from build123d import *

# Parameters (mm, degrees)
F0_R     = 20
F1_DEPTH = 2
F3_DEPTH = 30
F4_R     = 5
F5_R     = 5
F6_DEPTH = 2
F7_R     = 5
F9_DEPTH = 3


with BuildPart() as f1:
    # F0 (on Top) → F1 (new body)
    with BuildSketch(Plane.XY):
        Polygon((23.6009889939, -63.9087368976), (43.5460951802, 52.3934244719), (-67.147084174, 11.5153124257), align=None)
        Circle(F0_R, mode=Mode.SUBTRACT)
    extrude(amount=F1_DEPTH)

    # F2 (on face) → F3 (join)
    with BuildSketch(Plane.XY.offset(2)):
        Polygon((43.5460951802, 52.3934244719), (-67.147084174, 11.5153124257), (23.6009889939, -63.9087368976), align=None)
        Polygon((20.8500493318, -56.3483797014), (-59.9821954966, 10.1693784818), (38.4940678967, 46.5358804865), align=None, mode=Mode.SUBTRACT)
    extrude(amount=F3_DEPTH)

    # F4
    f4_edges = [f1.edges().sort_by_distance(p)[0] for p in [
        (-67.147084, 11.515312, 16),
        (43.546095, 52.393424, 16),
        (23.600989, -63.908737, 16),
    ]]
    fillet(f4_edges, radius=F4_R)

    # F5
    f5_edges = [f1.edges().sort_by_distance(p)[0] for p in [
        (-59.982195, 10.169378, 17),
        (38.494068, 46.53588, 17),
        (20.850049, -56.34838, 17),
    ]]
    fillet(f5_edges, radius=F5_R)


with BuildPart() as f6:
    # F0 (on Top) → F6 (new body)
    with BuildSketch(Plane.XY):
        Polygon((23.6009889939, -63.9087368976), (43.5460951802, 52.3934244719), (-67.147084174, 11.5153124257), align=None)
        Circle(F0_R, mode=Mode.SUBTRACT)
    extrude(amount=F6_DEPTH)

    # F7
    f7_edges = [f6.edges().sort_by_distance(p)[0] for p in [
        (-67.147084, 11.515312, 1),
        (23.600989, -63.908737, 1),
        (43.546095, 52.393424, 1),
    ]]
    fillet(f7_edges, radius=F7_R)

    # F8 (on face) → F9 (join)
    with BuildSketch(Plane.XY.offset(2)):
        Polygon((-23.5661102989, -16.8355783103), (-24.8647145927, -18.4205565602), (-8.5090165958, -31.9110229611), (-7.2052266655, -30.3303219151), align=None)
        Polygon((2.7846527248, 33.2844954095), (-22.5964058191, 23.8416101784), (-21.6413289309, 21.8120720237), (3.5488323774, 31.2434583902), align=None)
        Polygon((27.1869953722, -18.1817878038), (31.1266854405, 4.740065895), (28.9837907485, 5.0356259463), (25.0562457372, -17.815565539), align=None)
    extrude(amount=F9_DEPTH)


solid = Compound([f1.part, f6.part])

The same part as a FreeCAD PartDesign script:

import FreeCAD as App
import Part
import Sketcher


def edges_at(feature, points):
    """Names of the edges that pass closest to the given points."""
    edges = feature.Shape.Edges
    near = lambda p: min(range(len(edges)), key=lambda i: edges[i].distToShape(Part.Vertex(*p))[0])
    return sorted({f"Edge{near(p) + 1}" for p in points})


def add_polygon(sketch, points):
    """Adds a closed chain of lines whose ends are joined by coincident constraints."""
    first, n = sketch.GeometryCount, len(points)
    for a, b in zip(points, points[1:] + points[:1]):
        sketch.addGeometry(Part.LineSegment(App.Vector(*a, 0), App.Vector(*b, 0)), False)
    for i in range(n):
        sketch.addConstraint(Sketcher.Constraint("Coincident", first + i, 2, first + (i + 1) % n, 1))

doc = App.newDocument("Part")
body = doc.addObject("PartDesign::Body", "Body")

# Sketch on XY plane
sketch1 = body.newObject("Sketcher::SketchObject", "Sketch")
sketch1.AttachmentSupport = (doc.getObject("XY_Plane"), [""])
sketch1.MapMode = "FlatFace"
add_polygon(sketch1, [(24, -64), (44, 52), (-67, 12)])  # lines 0-2
sketch1.addGeometry(Part.Circle(App.Vector(0, 0, 0), App.Vector(0, 0, 1), 20), False)  # 3
sketch1.addConstraint(Sketcher.Constraint("Coincident", 3, 3, -1, 1))
sketch1.addConstraint(Sketcher.Constraint("Equal", 0, 1))
sketch1.addConstraint(Sketcher.Constraint("Equal", 1, 2))
sketch1.addConstraint(Sketcher.Constraint("Diameter", 3, 40.0))
sketch1.addConstraint(Sketcher.Constraint("Distance", 0, 118.0))
sketch1.addConstraint(Sketcher.Constraint("DistanceX", -1, 1, 2, 2, 23.600989))
sketch1.addConstraint(Sketcher.Constraint("DistanceX", 1, 2, 0, 2, 110.693179))
sketch1.addConstraint(Sketcher.Constraint("DistanceY", -1, 1, 0, 2, 52.393424))
pad1 = body.newObject("PartDesign::Pad", "Pad")
pad1.Profile = sketch1
pad1.Length = 2

# Sketch on XY plane
sketch2 = body.newObject("Sketcher::SketchObject", "Sketch001")
sketch2.AttachmentSupport = (doc.getObject("XY_Plane"), [""])
sketch2.MapMode = "FlatFace"
sketch2.AttachmentOffset = App.Placement(App.Vector(0, 0, 2), App.Rotation())
add_polygon(sketch2, [(44, 52), (-67, 12), (24, -64)])  # lines 0-2
add_polygon(sketch2, [(38, 47), (21, -56), (-60, 10)])  # lines 3-5
sketch2.addConstraint(Sketcher.Constraint("Parallel", 2, 3))
sketch2.addConstraint(Sketcher.Constraint("Parallel", 0, 5))
sketch2.addConstraint(Sketcher.Constraint("Equal", 0, 1))
sketch2.addConstraint(Sketcher.Constraint("Equal", 1, 2))
sketch2.addConstraint(Sketcher.Constraint("Distance", 0, 118.0))
sketch2.addConstraint(Sketcher.Constraint("Distance", 5, 104.976649))
sketch2.addConstraint(Sketcher.Constraint("DistanceX", -1, 1, 1, 2, 23.600989))
sketch2.addConstraint(Sketcher.Constraint("DistanceX", -1, 1, 3, 2, 20.850049))
sketch2.addConstraint(Sketcher.Constraint("DistanceY", 3, 2, -1, 1, 56.34838))
sketch2.addConstraint(Sketcher.Constraint("DistanceY", -1, 1, 4, 2, 10.169378))
sketch2.addConstraint(Sketcher.Constraint("DistanceY", -1, 1, 5, 2, 46.53588))
sketch2.addConstraint(Sketcher.Constraint("DistanceY", 0, 2, 5, 2, 35.020568))
pad2 = body.newObject("PartDesign::Pad", "Pad001")
pad2.Profile = sketch2
pad2.Length = 30
doc.recompute()

fillet = body.newObject("PartDesign::Fillet", "Fillet")
fillet.Base = (pad2, edges_at(pad2, [(-67.147, 11.515, 16), (43.546, 52.393, 16), (23.601, -63.909, 16)]))
fillet.Radius = 5
doc.recompute()

fillet2 = body.newObject("PartDesign::Fillet", "Fillet001")
fillet2.Base = (fillet, edges_at(fillet, [(-59.982, 10.169, 17), (38.494, 46.536, 17), (20.85, -56.348, 17)]))
fillet2.Radius = 5
body2 = doc.addObject("PartDesign::Body", "Body001")

# Sketch on XY plane
sketch3 = body2.newObject("Sketcher::SketchObject", "Sketch002")
sketch3.AttachmentSupport = (doc.getObject("XY_Plane001"), [""])
sketch3.MapMode = "FlatFace"
add_polygon(sketch3, [(24, -64), (44, 52), (-67, 12)])  # lines 0-2
sketch3.addGeometry(Part.Circle(App.Vector(0, 0, 0), App.Vector(0, 0, 1), 20), False)  # 3
sketch3.addConstraint(Sketcher.Constraint("Coincident", 3, 3, -1, 1))
sketch3.addConstraint(Sketcher.Constraint("Equal", 0, 1))
sketch3.addConstraint(Sketcher.Constraint("Equal", 1, 2))
sketch3.addConstraint(Sketcher.Constraint("Diameter", 3, 40.0))
sketch3.addConstraint(Sketcher.Constraint("Distance", 0, 118.0))
sketch3.addConstraint(Sketcher.Constraint("DistanceX", -1, 1, 2, 2, 23.600989))
sketch3.addConstraint(Sketcher.Constraint("DistanceX", 1, 2, 0, 2, 110.693179))
sketch3.addConstraint(Sketcher.Constraint("DistanceY", -1, 1, 0, 2, 52.393424))
pad3 = body2.newObject("PartDesign::Pad", "Pad002")
pad3.Profile = sketch3
pad3.Length = 2
doc.recompute()

fillet3 = body2.newObject("PartDesign::Fillet", "Fillet002")
fillet3.Base = (pad3, edges_at(pad3, [(-67.147, 11.515, 1), (23.601, -63.909, 1), (43.546, 52.393, 1)]))
fillet3.Radius = 5

# Sketch on XY plane
sketch4 = body2.newObject("Sketcher::SketchObject", "Sketch003")
sketch4.AttachmentSupport = (doc.getObject("XY_Plane001"), [""])
sketch4.MapMode = "FlatFace"
sketch4.AttachmentOffset = App.Placement(App.Vector(0, 0, 2), App.Rotation())
add_polygon(sketch4, [(-23.6, -16.8), (-24.9, -18.4), (-8.5, -31.9), (-7.2, -30.3)])  # lines 0-3
add_polygon(sketch4, [(2.8, 33.3), (-22.6, 23.8), (-21.6, 21.8), (3.5, 31.2)])  # lines 4-7
add_polygon(sketch4, [(27.2, -18.2), (31.1, 4.7), (29, 5), (25.1, -17.8)])  # lines 8-11
sketch4.addConstraint(Sketcher.Constraint("Perpendicular", 1, 2))
sketch4.addConstraint(Sketcher.Constraint("Perpendicular", 2, 3))
sketch4.addConstraint(Sketcher.Constraint("Perpendicular", 6, 7))
sketch4.addConstraint(Sketcher.Constraint("Parallel", 8, 10))
sketch4.addConstraint(Sketcher.Constraint("Perpendicular", 10, 11))
sketch4.addConstraint(Sketcher.Constraint("DistanceY", 1, 2, 2, 2, 1.580701))
sketch4.addConstraint(Sketcher.Constraint("Distance", 0, 2.049031))
sketch4.addConstraint(Sketcher.Constraint("Distance", 1, 21.201451))
sketch4.addConstraint(Sketcher.Constraint("Distance", 9, 2.163181))
sketch4.addConstraint(Sketcher.Constraint("Distance", 10, 23.186258))
sketch4.addConstraint(Sketcher.Constraint("DistanceY", 2, 2, -1, 1, 30.330322))
sketch4.addConstraint(Sketcher.Constraint("DistanceX", 3, 2, -1, 1, 23.56611))
sketch4.addConstraint(Sketcher.Constraint("DistanceY", 3, 2, -1, 1, 16.835578))
sketch4.addConstraint(Sketcher.Constraint("DistanceY", -1, 1, 4, 2, 23.84161))
sketch4.addConstraint(Sketcher.Constraint("DistanceX", 5, 2, -1, 1, 21.641329))
sketch4.addConstraint(Sketcher.Constraint("DistanceY", -1, 1, 6, 2, 31.243458))
sketch4.addConstraint(Sketcher.Constraint("DistanceX", -1, 1, 9, 2, 28.983791))
sketch4.addConstraint(Sketcher.Constraint("DistanceX", 0, 2, 4, 2, 2.268309))
sketch4.addConstraint(Sketcher.Constraint("DistanceY", 5, 2, 4, 2, 2.029538))
sketch4.addConstraint(Sketcher.Constraint("DistanceX", 5, 2, 6, 2, 25.190161))
sketch4.addConstraint(Sketcher.Constraint("DistanceX", 7, 2, 6, 2, 0.76418))
sketch4.addConstraint(Sketcher.Constraint("DistanceY", 8, 2, 7, 2, 28.54443))
sketch4.addConstraint(Sketcher.Constraint("DistanceY", 8, 2, 9, 2, 0.29556))
sketch4.addConstraint(Sketcher.Constraint("DistanceY", 10, 2, 9, 2, 22.851191))
pad4 = body2.newObject("PartDesign::Pad", "Pad003")
pad4.Profile = sketch4
pad4.Length = 3

doc.recompute()
